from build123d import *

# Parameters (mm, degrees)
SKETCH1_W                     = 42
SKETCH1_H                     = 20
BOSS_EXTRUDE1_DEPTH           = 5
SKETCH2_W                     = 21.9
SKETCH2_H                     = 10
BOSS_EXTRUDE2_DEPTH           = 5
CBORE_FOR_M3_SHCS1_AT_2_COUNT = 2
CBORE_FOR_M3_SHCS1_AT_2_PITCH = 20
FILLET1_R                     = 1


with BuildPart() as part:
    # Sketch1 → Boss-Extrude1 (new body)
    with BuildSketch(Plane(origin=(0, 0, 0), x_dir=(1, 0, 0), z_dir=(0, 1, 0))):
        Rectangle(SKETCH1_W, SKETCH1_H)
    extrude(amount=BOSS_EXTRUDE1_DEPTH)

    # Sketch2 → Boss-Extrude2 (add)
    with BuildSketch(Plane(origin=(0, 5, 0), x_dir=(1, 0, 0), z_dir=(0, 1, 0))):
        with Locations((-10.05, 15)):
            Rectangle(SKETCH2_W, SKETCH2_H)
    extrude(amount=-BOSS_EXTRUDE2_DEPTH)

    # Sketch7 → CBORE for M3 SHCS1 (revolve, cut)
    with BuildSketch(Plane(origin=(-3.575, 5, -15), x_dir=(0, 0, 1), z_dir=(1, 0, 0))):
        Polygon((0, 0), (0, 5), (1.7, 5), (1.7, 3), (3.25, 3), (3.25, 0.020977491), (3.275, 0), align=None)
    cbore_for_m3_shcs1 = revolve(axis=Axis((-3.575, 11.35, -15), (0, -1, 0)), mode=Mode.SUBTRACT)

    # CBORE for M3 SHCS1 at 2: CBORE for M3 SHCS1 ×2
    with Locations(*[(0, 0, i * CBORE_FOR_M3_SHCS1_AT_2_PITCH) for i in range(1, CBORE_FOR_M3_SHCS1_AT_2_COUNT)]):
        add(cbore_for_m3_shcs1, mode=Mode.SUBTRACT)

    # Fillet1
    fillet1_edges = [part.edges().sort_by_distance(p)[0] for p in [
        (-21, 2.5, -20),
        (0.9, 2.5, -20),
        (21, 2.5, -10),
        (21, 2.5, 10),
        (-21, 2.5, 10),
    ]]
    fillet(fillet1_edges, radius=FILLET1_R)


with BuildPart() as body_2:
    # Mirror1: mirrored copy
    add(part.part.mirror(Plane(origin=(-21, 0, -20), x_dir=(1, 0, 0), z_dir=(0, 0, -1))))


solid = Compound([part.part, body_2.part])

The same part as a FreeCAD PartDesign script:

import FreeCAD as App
import Part
import Sketcher
from FreeCAD import Vector
Q = App.Units.Quantity


def edges_at(feature, points):
    """Names of the edges that pass closest to the given points."""
    edges = feature.Shape.Edges
    near = lambda p: min(range(len(edges)), key=lambda i: edges[i].distToShape(Part.Vertex(*p))[0])
    return sorted({f"Edge{near(p) + 1}" for p in points})

doc = App.newDocument("Part")
body = doc.addObject("PartDesign::Body", "Body")

# Sketch on XZ plane
sketch1 = doc.addObject("Sketcher::SketchObject", "Sketch")
body.addObject(sketch1)
sketch1.AttachmentSupport = (doc.XZ_Plane, [""])
sketch1.MapMode = "FlatFace"
sketch1.addGeometry(Part.LineSegment(Vector(-21, -10, 0), Vector(-21, 10, 0)), False)
sketch1.addGeometry(Part.LineSegment(Vector(-21, 10, 0), Vector(21, 10, 0)), False)
sketch1.addGeometry(Part.LineSegment(Vector(21, 10, 0), Vector(21, -10, 0)), False)
sketch1.addGeometry(Part.LineSegment(Vector(21, -10, 0), Vector(-21, -10, 0)), False)
sketch1.addConstraint(Sketcher.Constraint("Coincident", 0, 2, 1, 1))
sketch1.addConstraint(Sketcher.Constraint("Coincident", 1, 2, 2, 1))
sketch1.addConstraint(Sketcher.Constraint("Coincident", 2, 2, 3, 1))
sketch1.addConstraint(Sketcher.Constraint("Coincident", 3, 2, 0, 1))
sketch1.addConstraint(Sketcher.Constraint("Vertical", 0))
sketch1.addConstraint(Sketcher.Constraint("Horizontal", 1))
sketch1.addConstraint(Sketcher.Constraint("Vertical", 2))
sketch1.addConstraint(Sketcher.Constraint("Horizontal", 3))
sketch1.addConstraint(Sketcher.Constraint("Symmetric", 0, 2, 2, 2, -1, 1))
sketch1.addConstraint(Sketcher.Constraint("DistanceX", 1, 1, 1, 2, Q("42 mm")))
sketch1.addConstraint(Sketcher.Constraint("DistanceY", 0, 1, 0, 2, Q("20 mm")))
pad1 = doc.addObject("PartDesign::Pad", "Pad")
body.addObject(pad1)
pad1.Profile = sketch1
pad1.Length = 5
pad1.Reversed = True

# Sketch on XZ plane
sketch2 = doc.addObject("Sketcher::SketchObject", "Sketch001")
body.addObject(sketch2)
sketch2.AttachmentSupport = (doc.XZ_Plane, [""])
sketch2.MapMode = "FlatFace"
sketch2.AttachmentOffset = App.Placement(Vector(0, 0, -5), App.Rotation())
sketch2.addGeometry(Part.LineSegment(Vector(-21, -20, 0), Vector(-21, -10, 0)), False)
sketch2.addGeometry(Part.LineSegment(Vector(-21, -10, 0), Vector(1, -10, 0)), False)
sketch2.addGeometry(Part.LineSegment(Vector(1, -10, 0), Vector(1, -20, 0)), False)
sketch2.addGeometry(Part.LineSegment(Vector(1, -20, 0), Vector(-21, -20, 0)), False)
sketch2.addConstraint(Sketcher.Constraint("Coincident", 0, 2, 1, 1))
sketch2.addConstraint(Sketcher.Constraint("Coincident", 1, 2, 2, 1))
sketch2.addConstraint(Sketcher.Constraint("Coincident", 2, 2, 3, 1))
sketch2.addConstraint(Sketcher.Constraint("Coincident", 3, 2, 0, 1))
sketch2.addConstraint(Sketcher.Constraint("Vertical", 0))
sketch2.addConstraint(Sketcher.Constraint("Horizontal", 1))
sketch2.addConstraint(Sketcher.Constraint("Vertical", 2))
sketch2.addConstraint(Sketcher.Constraint("Horizontal", 3))
sketch2.addConstraint(Sketcher.Constraint("DistanceY", 0, 1, 0, 2, Q("10 mm")))
sketch2.addConstraint(Sketcher.Constraint("DistanceX", 1, 1, 1, 2, Q("21.9 mm")))
sketch2.addConstraint(Sketcher.Constraint("DistanceX", 0, 2, -1, 1, Q("21 mm")))
sketch2.addConstraint(Sketcher.Constraint("DistanceY", 0, 2, -1, 1, Q("10 mm")))
pad2 = doc.addObject("PartDesign::Pad", "Pad001")
body.addObject(pad2)
pad2.Profile = sketch2
pad2.Length = 5

# Sketch on YZ plane
sketch3 = doc.addObject("Sketcher::SketchObject", "Sketch002")
body.addObject(sketch3)
sketch3.AttachmentSupport = (doc.YZ_Plane, [""])
sketch3.MapMode = "FlatFace"
sketch3.AttachmentOffset = App.Placement(Vector(0, 0, -3.575), App.Rotation())
sketch3.addGeometry(Part.LineSegment(Vector(0, -15, 0), Vector(5, -15, 0)), False)
sketch3.addGeometry(Part.LineSegment(Vector(5, -15, 0), Vector(5, -11.725, 0)), False)
sketch3.addGeometry(Part.LineSegment(Vector(5, -11.725, 0), Vector(4.979, -11.75, 0)), False)
sketch3.addGeometry(Part.LineSegment(Vector(4.979, -11.75, 0), Vector(2, -11.75, 0)), False)
sketch3.addGeometry(Part.LineSegment(Vector(2, -11.75, 0), Vector(2, -13.3, 0)), False)
sketch3.addGeometry(Part.LineSegment(Vector(2, -13.3, 0), Vector(0, -13.3, 0)), False)
sketch3.addGeometry(Part.LineSegment(Vector(0, -13.3, 0), Vector(0, -15, 0)), False)
sketch3.addGeometry(Part.LineSegment(Vector(5, -15, 0), Vector(0, -15, 0)), True)  # axis
sketch3.addConstraint(Sketcher.Constraint("Coincident", 0, 2, 1, 1))
sketch3.addConstraint(Sketcher.Constraint("Coincident", 1, 2, 2, 1))
sketch3.addConstraint(Sketcher.Constraint("Coincident", 2, 2, 3, 1))
sketch3.addConstraint(Sketcher.Constraint("Coincident", 3, 2, 4, 1))
sketch3.addConstraint(Sketcher.Constraint("Coincident", 4, 2, 5, 1))
sketch3.addConstraint(Sketcher.Constraint("Coincident", 5, 2, 6, 1))
sketch3.addConstraint(Sketcher.Constraint("Coincident", 6, 2, 0, 1))
sketch3.addConstraint(Sketcher.Constraint("Horizontal", 0))
sketch3.addConstraint(Sketcher.Constraint("Vertical", 1))
sketch3.addConstraint(Sketcher.Constraint("Horizontal", 3))
sketch3.addConstraint(Sketcher.Constraint("Vertical", 4))
sketch3.addConstraint(Sketcher.Constraint("Horizontal", 5))
sketch3.addConstraint(Sketcher.Constraint("Vertical", 6))
sketch3.addConstraint(Sketcher.Constraint("Horizontal", 7))
sketch3.addConstraint(Sketcher.Constraint("Coincident", 7, 1, 0, 2))
sketch3.addConstraint(Sketcher.Constraint("PointOnObject", 5, 2, -2))
sketch3.addConstraint(Sketcher.Constraint("PointOnObject", 7, 2, -2))
sketch3.addConstraint(Sketcher.Constraint("DistanceX", 0, 1, 0, 2, Q("5 mm")))
sketch3.addConstraint(Sketcher.Constraint("DistanceX", 5, 2, 5, 1, Q("2 mm")))
sketch3.addConstraint(Sketcher.Constraint("Angle", 2, Q("-130 deg")))
sketch3.addConstraint(Sketcher.Constraint("DistanceY", 6, 2, 6, 1, Q("1.7 mm")))
sketch3.addConstraint(Sketcher.Constraint("DistanceY", 0, 2, -1, 1, Q("15 mm")))
sketch3.addConstraint(Sketcher.Constraint("DistanceY", 4, 2, 4, 1, Q("1.55 mm")))
sketch3.addConstraint(Sketcher.Constraint("DistanceY", 1, 1, 1, 2, Q("3.275 mm")))
groove = doc.addObject("PartDesign::Groove", "Groove")
body.addObject(groove)
groove.Profile = sketch3
groove.ReferenceAxis = (sketch3, ["Axis0"])
groove.Angle = 360
doc.recompute()

linearpattern = doc.addObject("PartDesign::LinearPattern", "LinearPattern")
body.addObject(linearpattern)
linearpattern.Originals = [groove]
linearpattern.Direction = (doc.Z_Axis, [""])
linearpattern.Mode = "offset"
linearpattern.Offset = 20
linearpattern.Occurrences = 2
body.Tip = linearpattern
doc.recompute()

fillet = doc.addObject("PartDesign::Fillet", "Fillet")
body.addObject(fillet)
fillet.Base = (linearpattern, edges_at(linearpattern, [
    (-21, 2.5, -20),
    (0.9, 2.5, -20),
    (21, 2.5, -10),
    (21, 2.5, 10),
    (-21, 2.5, 10),
]))
fillet.Radius = 1
body2 = doc.addObject("PartDesign::Body", "Body001")
doc.recompute()

mirroring = doc.addObject("Part::Mirroring", "Mirroring")
mirroring.Source = body
mirroring.Base = Vector(-21, 0, -20)
mirroring.Normal = Vector(0, 0, -1)
body2.BaseFeature = mirroring
doc.recompute()
mirroring.Visibility = False

doc.recompute()
